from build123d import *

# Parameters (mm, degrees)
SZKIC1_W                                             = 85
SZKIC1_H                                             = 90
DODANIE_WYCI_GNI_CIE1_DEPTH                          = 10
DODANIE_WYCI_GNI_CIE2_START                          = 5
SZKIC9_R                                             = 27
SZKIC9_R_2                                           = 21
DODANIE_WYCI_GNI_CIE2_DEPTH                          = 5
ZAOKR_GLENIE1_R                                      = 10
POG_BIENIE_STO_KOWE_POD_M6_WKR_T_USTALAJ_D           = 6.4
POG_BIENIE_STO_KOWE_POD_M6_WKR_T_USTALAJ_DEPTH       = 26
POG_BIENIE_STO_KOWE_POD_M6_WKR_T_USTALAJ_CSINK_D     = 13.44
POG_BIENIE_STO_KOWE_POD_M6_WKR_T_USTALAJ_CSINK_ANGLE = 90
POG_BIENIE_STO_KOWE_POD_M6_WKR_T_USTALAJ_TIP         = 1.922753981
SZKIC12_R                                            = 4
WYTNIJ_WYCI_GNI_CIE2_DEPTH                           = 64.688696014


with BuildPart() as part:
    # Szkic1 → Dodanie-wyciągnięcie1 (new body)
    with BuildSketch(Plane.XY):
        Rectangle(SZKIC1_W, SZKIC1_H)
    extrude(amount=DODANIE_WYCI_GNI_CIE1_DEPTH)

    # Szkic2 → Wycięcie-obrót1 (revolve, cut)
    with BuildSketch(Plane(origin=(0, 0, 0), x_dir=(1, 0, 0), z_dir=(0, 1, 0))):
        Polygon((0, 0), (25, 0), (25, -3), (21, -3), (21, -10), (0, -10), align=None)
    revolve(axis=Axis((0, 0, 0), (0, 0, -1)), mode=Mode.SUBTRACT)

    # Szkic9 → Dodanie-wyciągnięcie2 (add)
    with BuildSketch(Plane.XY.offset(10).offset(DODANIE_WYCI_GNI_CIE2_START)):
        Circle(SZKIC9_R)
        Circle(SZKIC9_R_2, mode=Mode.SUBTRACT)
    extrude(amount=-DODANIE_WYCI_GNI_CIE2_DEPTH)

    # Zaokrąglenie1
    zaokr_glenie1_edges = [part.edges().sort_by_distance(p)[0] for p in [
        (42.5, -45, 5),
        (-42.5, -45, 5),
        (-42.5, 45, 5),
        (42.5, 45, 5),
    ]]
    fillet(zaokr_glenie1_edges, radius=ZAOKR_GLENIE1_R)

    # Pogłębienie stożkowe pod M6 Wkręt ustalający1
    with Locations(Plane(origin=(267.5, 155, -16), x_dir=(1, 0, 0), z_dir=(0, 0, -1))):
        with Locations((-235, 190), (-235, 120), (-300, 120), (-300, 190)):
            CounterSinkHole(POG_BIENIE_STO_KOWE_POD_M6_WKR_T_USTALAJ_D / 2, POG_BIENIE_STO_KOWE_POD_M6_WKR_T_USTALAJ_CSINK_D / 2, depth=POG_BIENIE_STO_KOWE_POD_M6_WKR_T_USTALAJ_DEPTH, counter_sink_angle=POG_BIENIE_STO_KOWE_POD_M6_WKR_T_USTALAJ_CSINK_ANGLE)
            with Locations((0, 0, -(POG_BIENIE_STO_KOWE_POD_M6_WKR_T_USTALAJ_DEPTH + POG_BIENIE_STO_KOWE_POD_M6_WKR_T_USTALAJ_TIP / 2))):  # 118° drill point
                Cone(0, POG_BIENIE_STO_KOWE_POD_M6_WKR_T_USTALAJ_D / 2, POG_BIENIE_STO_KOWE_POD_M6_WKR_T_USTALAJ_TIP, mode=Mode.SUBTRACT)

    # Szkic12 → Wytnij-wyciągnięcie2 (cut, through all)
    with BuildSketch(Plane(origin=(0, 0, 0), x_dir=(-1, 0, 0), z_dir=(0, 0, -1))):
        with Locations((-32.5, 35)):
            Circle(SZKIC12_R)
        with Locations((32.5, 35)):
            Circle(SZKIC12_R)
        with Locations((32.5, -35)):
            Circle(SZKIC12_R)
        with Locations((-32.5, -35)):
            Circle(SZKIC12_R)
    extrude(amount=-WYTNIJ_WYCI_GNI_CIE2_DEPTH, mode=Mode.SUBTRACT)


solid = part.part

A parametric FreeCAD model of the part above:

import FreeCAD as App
import Part
import Sketcher
from FreeCAD import Vector
Q = App.Units.Quantity


def edges_at(feature, points):
    """Names of the edges that pass closest to the given points."""
    edges = feature.Shape.Edges
    near = lambda p: min(range(len(edges)), key=lambda i: edges[i].distToShape(Part.Vertex(*p))[0])
    return sorted({f"Edge{near(p) + 1}" for p in points})

doc = App.newDocument("Part")
body = doc.addObject("PartDesign::Body", "Body")

# Sketch on XY plane
sketch1 = body.newObject("Sketcher::SketchObject", "Sketch")
sketch1.AttachmentSupport = (doc.getObject("XY_Plane"), [""])
sketch1.MapMode = "FlatFace"
sketch1.addGeometry([
    Part.LineSegment(Vector(-42.5, 45, 0), Vector(-42.5, -45, 0)),
    Part.LineSegment(Vector(-42.5, -45, 0), Vector(42.5, -45, 0)),
    Part.LineSegment(Vector(42.5, -45, 0), Vector(42.5, 45, 0)),
    Part.LineSegment(Vector(42.5, 45, 0), Vector(-42.5, 45, 0)),
], False)
sketch1.addConstraint([
    Sketcher.Constraint("Coincident", 0, 2, 1, 1),
    Sketcher.Constraint("Coincident", 1, 2, 2, 1),
    Sketcher.Constraint("Coincident", 2, 2, 3, 1),
    Sketcher.Constraint("Coincident", 3, 2, 0, 1),
    Sketcher.Constraint("Vertical", 0),
    Sketcher.Constraint("Horizontal", 1),
    Sketcher.Constraint("Vertical", 2),
    Sketcher.Constraint("Horizontal", 3),
    Sketcher.Constraint("Symmetric", 0, 2, 2, 2, -1, 1),
    Sketcher.Constraint("DistanceX", 1, 1, 1, 2, Q("85 mm")),
    Sketcher.Constraint("DistanceY", 0, 2, 0, 1, Q("90 mm")),
])
pad1 = body.newObject("PartDesign::Pad", "Pad")
pad1.Profile = sketch1
pad1.Length = 10

# Sketch on XZ plane
sketch2 = body.newObject("Sketcher::SketchObject", "Sketch001")
sketch2.AttachmentSupport = (doc.getObject("XZ_Plane"), [""])
sketch2.MapMode = "FlatFace"
sketch2.addGeometry([
    Part.LineSegment(Vector(25, 0, 0), Vector(0, 0, 0)),  # 0
    Part.LineSegment(Vector(0, 0, 0), Vector(0, 10, 0)),  # 1
    Part.LineSegment(Vector(0, 10, 0), Vector(21, 10, 0)),  # 2
    Part.LineSegment(Vector(21, 10, 0), Vector(21, 3, 0)),  # 3
    Part.LineSegment(Vector(21, 3, 0), Vector(25, 3, 0)),  # 4
    Part.LineSegment(Vector(25, 3, 0), Vector(25, 0, 0)),  # 5
], False)
sketch2.addConstraint([
    Sketcher.Constraint("Coincident", 0, 2, 1, 1),
    Sketcher.Constraint("Coincident", 1, 2, 2, 1),
    Sketcher.Constraint("Coincident", 2, 2, 3, 1),
    Sketcher.Constraint("Coincident", 3, 2, 4, 1),
    Sketcher.Constraint("Coincident", 4, 2, 5, 1),
    Sketcher.Constraint("Coincident", 5, 2, 0, 1),
    Sketcher.Constraint("Horizontal", 0),
    Sketcher.Constraint("Vertical", 1),
    Sketcher.Constraint("Horizontal", 2),
    Sketcher.Constraint("Vertical", 3),
    Sketcher.Constraint("Horizontal", 4),
    Sketcher.Constraint("Vertical", 5),
    Sketcher.Constraint("Coincident", 0, 2, -1, 1),
    Sketcher.Constraint("DistanceX", 0, 2, 0, 1, Q("25 mm")),
    Sketcher.Constraint("DistanceX", 2, 1, 2, 2, Q("21 mm")),
    Sketcher.Constraint("DistanceY", 1, 1, 1, 2, Q("10 mm")),
    Sketcher.Constraint("DistanceY", 3, 2, 3, 1, Q("7 mm")),
])
groove = body.newObject("PartDesign::Groove", "Groove")
groove.Profile = sketch2
groove.ReferenceAxis = (sketch2, ["V_Axis"])
groove.Angle = 360

# Sketch on XY plane
sketch3 = body.newObject("Sketcher::SketchObject", "Sketch002")
sketch3.AttachmentSupport = (doc.getObject("XY_Plane"), [""])
sketch3.MapMode = "FlatFace"
sketch3.AttachmentOffset = App.Placement(Vector(0, 0, 15), App.Rotation())
sketch3.addGeometry([
    Part.Circle(Vector(0, 0, 0), Vector(0, 0, 1), 27),
    Part.Circle(Vector(0, 0, 0), Vector(0, 0, 1), 21),
], False)
sketch3.addConstraint([
    Sketcher.Constraint("Coincident", 0, 3, -1, 1),
    Sketcher.Constraint("Coincident", 1, 3, -1, 1),
    Sketcher.Constraint("Diameter", 0, Q("54 mm")),
    Sketcher.Constraint("Diameter", 1, Q("42 mm")),
])
pad2 = body.newObject("PartDesign::Pad", "Pad001")
pad2.Profile = sketch3
pad2.Length = 5
pad2.Reversed = True
doc.recompute()

fillet = body.newObject("PartDesign::Fillet", "Fillet")
fillet.Base = (pad2, edges_at(pad2, [
    (42.5, -45, 5),
    (-42.5, -45, 5),
    (-42.5, 45, 5),
    (42.5, 45, 5),
]))
fillet.Radius = 10

# Sketch on XY plane
sketch4 = body.newObject("Sketcher::SketchObject", "Sketch003")
sketch4.AttachmentSupport = (doc.getObject("XY_Plane"), [""])
sketch4.MapMode = "FlatFace"
sketch4.AttachmentOffset = App.Placement(Vector(0, 0, -16), App.Rotation())
sketch4.addGeometry([
    Part.Circle(Vector(32.5, -35, 0), Vector(0, 0, 1), 3.2),
    Part.Circle(Vector(32.5, 35, 0), Vector(0, 0, 1), 3.2),
    Part.Circle(Vector(-32.5, 35, 0), Vector(0, 0, 1), 3.2),
    Part.Circle(Vector(-32.5, -35, 0), Vector(0, 0, 1), 3.2),
], False)
sketch4.addConstraint([
    Sketcher.Constraint("Equal", 0, 1),
    Sketcher.Constraint("Equal", 1, 2),
    Sketcher.Constraint("Equal", 2, 3),
    Sketcher.Constraint("Symmetric", 0, 3, 2, 3, -1, 1),
    Sketcher.Constraint("Symmetric", 1, 3, 3, 3, -1, 1),
    Sketcher.Constraint("Symmetric", 1, 3, 2, 3, -2),
    Sketcher.Constraint("Diameter", 0, Q("6.4 mm")),
    Sketcher.Constraint("DistanceY", 0, 3, -1, 1, Q("35 mm")),
    Sketcher.Constraint("DistanceX", 2, 3, 1, 3, Q("65 mm")),
])
doc.recompute()
hole = body.newObject("PartDesign::Hole", "Hole")
hole.Profile = sketch4
hole.ThreadType = "None"
hole.Diameter = 6.4
hole.DepthType = "Dimension"
hole.Depth = 26
hole.DrillPoint = "Angled"
hole.DrillPointAngle = 118
hole.HoleCutType = "Countersink"
hole.HoleCutDiameter = 13.44
hole.HoleCutCountersinkAngle = 90
hole.Reversed = True

# Sketch on XY plane
sketch5 = body.newObject("Sketcher::SketchObject", "Sketch004")
sketch5.AttachmentSupport = (doc.getObject("XY_Plane"), [""])
sketch5.MapMode = "FlatFace"
sketch5.addGeometry([
    Part.Circle(Vector(32.5, 35, 0), Vector(0, 0, 1), 4),
    Part.Circle(Vector(-32.5, 35, 0), Vector(0, 0, 1), 4),
    Part.Circle(Vector(-32.5, -35, 0), Vector(0, 0, 1), 4),
    Part.Circle(Vector(32.5, -35, 0), Vector(0, 0, 1), 4),
], False)
sketch5.addConstraint([
    Sketcher.Constraint("Equal", 0, 1),
    Sketcher.Constraint("Equal", 1, 2),
    Sketcher.Constraint("Equal", 2, 3),
    Sketcher.Constraint("Symmetric", 0, 3, 2, 3, -1, 1),
    Sketcher.Constraint("Symmetric", 1, 3, 3, 3, -1, 1),
    Sketcher.Constraint("Symmetric", 0, 3, 1, 3, -2),
    Sketcher.Constraint("Diameter", 0, Q("8 mm")),
    Sketcher.Constraint("DistanceY", -1, 1, 0, 3, Q("35 mm")),
    Sketcher.Constraint("DistanceX", 1, 3, 0, 3, Q("65 mm")),
])
pocket1 = body.newObject("PartDesign::Pocket", "Pocket")
pocket1.Profile = sketch5
pocket1.Type = "ThroughAll"
pocket1.Reversed = True

doc.recompute()
